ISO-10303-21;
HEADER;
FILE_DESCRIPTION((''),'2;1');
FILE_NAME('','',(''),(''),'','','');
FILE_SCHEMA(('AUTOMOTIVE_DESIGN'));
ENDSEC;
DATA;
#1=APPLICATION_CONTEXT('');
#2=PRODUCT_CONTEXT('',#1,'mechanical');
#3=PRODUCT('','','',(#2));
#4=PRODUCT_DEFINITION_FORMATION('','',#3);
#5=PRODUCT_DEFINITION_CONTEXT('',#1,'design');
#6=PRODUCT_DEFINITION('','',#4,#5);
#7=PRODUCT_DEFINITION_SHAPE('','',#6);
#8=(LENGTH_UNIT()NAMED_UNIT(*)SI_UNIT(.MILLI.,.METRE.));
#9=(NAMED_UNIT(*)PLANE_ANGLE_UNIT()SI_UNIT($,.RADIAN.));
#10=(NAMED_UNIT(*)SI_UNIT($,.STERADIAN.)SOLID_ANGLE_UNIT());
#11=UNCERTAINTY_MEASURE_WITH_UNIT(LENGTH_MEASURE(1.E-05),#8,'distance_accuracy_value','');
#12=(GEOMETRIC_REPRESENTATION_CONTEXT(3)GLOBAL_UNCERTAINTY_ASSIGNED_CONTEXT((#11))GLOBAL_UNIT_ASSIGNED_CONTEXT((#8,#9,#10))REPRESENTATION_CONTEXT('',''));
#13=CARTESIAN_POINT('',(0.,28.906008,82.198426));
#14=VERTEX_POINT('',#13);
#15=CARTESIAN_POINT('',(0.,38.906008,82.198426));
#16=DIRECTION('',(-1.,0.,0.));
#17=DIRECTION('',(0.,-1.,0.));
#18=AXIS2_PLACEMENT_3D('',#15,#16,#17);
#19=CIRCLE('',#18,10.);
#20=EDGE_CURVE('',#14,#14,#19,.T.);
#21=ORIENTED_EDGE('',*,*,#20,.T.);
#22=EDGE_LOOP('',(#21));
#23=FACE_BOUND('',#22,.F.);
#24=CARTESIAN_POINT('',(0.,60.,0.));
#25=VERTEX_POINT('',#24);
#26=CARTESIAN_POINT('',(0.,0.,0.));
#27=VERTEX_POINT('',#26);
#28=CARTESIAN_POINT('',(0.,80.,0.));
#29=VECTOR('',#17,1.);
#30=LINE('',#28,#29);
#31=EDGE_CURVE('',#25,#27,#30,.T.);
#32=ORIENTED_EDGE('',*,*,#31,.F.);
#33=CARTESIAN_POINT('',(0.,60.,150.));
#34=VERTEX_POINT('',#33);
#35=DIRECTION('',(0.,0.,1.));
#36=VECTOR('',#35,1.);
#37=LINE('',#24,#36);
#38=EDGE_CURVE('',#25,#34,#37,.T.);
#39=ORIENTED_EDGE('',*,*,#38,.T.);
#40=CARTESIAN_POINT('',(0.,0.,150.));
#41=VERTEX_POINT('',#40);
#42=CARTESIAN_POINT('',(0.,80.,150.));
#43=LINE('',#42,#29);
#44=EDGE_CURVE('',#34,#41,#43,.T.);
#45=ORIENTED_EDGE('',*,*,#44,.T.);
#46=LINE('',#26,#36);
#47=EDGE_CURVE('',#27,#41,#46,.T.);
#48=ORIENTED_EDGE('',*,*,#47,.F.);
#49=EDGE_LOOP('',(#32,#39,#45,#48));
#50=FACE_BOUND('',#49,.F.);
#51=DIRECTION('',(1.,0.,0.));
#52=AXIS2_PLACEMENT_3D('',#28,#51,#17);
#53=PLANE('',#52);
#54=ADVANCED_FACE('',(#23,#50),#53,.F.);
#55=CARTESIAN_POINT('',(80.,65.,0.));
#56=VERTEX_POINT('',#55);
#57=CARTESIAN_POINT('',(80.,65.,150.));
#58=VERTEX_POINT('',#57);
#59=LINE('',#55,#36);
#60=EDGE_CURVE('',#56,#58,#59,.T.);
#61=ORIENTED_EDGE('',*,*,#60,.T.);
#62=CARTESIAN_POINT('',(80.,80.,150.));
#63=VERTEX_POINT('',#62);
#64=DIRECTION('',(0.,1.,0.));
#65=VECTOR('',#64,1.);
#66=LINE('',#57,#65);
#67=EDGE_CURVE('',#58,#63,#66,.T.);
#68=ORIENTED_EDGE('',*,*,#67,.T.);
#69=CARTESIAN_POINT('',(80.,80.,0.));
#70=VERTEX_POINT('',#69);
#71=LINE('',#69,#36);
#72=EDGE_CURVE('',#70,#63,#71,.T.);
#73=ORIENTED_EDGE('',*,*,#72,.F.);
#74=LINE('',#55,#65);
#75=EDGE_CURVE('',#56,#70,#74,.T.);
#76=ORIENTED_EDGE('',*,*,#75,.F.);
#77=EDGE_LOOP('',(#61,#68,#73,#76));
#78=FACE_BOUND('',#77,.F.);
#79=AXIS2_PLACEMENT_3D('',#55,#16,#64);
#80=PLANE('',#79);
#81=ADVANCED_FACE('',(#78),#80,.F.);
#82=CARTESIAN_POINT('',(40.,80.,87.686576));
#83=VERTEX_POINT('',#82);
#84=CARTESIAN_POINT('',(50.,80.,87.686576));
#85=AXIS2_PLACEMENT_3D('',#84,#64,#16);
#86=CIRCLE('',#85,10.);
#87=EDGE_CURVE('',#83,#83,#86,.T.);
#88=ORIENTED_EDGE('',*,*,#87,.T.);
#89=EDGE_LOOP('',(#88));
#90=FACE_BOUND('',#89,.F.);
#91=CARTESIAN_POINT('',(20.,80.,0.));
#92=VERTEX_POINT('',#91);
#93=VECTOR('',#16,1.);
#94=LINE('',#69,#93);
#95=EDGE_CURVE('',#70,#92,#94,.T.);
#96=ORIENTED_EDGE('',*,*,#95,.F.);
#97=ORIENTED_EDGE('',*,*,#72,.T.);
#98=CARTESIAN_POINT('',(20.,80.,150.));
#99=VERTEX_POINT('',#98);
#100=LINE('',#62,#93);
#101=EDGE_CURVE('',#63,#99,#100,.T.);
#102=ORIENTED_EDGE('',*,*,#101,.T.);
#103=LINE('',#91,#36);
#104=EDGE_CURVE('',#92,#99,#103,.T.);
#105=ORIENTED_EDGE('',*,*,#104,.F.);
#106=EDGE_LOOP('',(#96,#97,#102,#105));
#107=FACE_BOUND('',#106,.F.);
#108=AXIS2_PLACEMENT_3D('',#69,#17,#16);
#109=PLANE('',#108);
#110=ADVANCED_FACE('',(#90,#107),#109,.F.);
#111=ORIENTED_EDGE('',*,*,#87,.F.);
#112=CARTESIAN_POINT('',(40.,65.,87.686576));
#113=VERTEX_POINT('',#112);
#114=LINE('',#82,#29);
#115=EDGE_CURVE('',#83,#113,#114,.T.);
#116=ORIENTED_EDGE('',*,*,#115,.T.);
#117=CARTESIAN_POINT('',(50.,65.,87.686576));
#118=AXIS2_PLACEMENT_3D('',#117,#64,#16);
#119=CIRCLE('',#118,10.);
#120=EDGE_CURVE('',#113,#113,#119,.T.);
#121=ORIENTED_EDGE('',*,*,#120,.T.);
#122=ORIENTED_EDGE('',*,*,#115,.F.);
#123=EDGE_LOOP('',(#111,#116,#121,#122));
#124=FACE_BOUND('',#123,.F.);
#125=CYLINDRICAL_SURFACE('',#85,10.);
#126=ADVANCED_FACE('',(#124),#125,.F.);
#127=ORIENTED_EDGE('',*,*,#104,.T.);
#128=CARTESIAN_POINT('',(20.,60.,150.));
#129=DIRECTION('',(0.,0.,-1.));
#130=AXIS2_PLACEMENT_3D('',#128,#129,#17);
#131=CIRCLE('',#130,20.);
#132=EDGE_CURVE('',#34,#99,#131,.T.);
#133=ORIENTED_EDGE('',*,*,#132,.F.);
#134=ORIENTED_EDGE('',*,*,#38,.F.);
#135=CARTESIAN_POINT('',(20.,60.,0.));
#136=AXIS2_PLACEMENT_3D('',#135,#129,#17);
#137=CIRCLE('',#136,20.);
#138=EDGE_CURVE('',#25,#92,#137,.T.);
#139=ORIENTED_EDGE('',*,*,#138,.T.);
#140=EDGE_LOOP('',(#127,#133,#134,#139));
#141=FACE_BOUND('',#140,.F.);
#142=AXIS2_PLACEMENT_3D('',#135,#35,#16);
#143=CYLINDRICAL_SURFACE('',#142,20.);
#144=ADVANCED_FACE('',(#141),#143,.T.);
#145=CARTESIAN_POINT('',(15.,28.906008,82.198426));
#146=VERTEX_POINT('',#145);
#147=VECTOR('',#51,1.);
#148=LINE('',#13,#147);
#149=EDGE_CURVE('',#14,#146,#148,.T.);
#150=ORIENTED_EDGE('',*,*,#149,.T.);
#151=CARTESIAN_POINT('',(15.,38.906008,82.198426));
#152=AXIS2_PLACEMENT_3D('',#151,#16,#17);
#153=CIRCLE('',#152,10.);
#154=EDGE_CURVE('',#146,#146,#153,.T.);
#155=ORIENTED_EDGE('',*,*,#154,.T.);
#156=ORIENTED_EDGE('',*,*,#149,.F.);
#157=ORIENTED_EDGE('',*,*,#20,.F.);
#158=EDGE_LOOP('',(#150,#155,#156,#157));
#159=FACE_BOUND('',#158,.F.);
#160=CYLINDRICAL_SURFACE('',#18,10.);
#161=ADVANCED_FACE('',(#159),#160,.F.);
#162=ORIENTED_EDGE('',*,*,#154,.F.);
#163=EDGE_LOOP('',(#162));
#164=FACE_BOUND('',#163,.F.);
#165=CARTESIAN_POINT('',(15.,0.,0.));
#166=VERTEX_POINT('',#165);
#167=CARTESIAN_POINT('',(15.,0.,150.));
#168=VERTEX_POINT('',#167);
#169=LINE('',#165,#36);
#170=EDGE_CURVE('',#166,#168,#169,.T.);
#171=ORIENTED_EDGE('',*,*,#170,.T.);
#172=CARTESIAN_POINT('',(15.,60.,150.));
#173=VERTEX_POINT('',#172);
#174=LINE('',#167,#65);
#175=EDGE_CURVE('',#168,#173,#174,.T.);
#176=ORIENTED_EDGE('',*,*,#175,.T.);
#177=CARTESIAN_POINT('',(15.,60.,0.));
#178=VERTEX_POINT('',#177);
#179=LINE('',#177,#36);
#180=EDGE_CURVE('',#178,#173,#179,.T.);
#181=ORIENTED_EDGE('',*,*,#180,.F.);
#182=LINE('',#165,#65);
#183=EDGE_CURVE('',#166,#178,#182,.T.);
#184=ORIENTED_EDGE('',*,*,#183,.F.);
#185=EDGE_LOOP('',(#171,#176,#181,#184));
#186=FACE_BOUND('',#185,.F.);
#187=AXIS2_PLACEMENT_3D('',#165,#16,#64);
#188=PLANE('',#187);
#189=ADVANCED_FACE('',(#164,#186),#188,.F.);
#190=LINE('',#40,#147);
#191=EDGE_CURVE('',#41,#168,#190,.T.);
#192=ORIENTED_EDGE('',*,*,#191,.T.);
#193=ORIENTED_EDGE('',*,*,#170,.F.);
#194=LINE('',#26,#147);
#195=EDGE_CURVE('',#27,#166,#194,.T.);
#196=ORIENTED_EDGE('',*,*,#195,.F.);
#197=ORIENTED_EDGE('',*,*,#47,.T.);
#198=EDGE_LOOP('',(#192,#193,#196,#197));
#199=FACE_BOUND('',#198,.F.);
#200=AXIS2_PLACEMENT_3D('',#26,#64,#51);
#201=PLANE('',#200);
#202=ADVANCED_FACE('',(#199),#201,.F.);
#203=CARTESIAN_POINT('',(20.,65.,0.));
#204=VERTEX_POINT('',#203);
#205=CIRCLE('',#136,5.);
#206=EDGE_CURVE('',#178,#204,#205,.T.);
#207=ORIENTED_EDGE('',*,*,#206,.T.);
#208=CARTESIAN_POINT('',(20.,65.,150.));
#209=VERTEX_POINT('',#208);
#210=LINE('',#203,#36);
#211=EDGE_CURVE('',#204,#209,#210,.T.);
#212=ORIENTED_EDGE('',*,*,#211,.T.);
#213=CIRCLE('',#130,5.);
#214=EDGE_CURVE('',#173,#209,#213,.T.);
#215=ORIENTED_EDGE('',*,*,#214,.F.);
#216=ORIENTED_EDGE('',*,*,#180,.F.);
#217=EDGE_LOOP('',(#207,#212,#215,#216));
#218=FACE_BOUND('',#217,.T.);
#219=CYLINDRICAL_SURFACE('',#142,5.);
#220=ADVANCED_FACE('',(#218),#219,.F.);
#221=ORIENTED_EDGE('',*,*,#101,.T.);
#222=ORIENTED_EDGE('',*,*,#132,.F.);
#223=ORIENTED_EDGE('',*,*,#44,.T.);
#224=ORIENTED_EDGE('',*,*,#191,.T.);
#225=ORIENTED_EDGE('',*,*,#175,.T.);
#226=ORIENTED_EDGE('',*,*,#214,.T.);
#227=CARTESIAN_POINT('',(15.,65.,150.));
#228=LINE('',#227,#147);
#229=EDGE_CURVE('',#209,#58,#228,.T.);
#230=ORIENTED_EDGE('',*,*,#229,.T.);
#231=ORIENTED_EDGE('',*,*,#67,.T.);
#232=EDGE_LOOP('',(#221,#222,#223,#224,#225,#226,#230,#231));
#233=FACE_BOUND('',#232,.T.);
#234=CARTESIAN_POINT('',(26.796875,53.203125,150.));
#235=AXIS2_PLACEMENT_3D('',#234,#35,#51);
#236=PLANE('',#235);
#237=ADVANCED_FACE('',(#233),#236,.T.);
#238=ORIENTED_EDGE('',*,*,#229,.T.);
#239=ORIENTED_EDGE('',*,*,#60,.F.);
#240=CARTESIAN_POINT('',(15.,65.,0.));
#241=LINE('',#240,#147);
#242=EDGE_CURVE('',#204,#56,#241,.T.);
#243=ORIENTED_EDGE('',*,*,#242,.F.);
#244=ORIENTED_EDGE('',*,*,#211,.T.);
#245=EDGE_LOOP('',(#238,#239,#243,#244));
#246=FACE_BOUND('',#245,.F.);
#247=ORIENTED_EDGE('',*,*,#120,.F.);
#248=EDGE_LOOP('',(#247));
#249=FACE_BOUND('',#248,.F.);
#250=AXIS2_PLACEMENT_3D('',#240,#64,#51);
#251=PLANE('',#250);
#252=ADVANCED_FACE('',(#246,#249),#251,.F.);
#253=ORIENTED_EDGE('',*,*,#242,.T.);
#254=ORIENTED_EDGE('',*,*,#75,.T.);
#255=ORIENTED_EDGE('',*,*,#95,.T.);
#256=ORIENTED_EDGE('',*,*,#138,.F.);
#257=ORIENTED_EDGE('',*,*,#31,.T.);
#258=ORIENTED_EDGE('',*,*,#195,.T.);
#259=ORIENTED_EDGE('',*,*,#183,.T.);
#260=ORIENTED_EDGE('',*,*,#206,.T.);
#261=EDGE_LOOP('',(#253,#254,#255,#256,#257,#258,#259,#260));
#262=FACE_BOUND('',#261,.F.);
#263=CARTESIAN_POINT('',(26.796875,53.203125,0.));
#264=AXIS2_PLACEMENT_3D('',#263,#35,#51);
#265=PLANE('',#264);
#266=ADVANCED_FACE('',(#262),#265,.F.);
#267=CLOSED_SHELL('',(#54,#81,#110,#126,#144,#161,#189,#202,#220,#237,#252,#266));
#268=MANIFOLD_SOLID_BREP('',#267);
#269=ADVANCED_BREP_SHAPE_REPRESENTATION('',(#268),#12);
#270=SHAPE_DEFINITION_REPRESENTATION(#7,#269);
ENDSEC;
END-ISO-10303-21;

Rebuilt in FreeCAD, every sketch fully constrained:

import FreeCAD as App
import Part
import Sketcher

V = App.Vector


def edges_at(feature, points):
    """Names of the edges that pass closest to the given points."""
    edges = feature.Shape.Edges
    near = lambda p: min(range(len(edges)), key=lambda i: edges[i].distToShape(Part.Vertex(*p))[0])
    return sorted({f"Edge{near(p) + 1}" for p in points})


def add_polygon(sketch, points):
    """Adds a closed chain of lines whose ends are joined by coincident constraints."""
    first, n = sketch.GeometryCount, len(points)
    for a, b in zip(points, points[1:] + points[:1]):
        sketch.addGeometry(Part.LineSegment(App.Vector(*a, 0), App.Vector(*b, 0)), False)
    for i in range(n):
        sketch.addConstraint(Sketcher.Constraint("Coincident", first + i, 2, first + (i + 1) % n, 1))

doc = App.newDocument("Part")
params = doc.addObject("Spreadsheet::Sheet", "Params")
for row, (alias, value) in enumerate([
    ("sketch1_width", "15 mm"),
    ("sketch1_width2", "65 mm"),
    ("pad1_length", "150 mm"),
    ("fillet_radius", "20 mm"),
    ("fillet2_radius", "5 mm"),
    ("sketch2_diameter", "20 mm"),
    ("sketch3_diameter", "20 mm"),
], start=1):
    params.set(f"A{row}", alias)
    params.set(f"B{row}", "=" + value)
    params.setAlias(f"B{row}", alias)

body = doc.addObject("PartDesign::Body", "Body")

sketch1 = doc.addObject("Sketcher::SketchObject", "Sketch")
body.addObject(sketch1)
sketch1.AttachmentSupport = (doc.XY_Plane, [""])
sketch1.MapMode = "FlatFace"
add_polygon(sketch1, [(0, 80), (0, 0), (15, 0), (15, 65), (80, 65), (80, 80)])
sketch1.addConstraint([
    Sketcher.Constraint("Vertical", 0),
    Sketcher.Constraint("Horizontal", 1),
    Sketcher.Constraint("Vertical", 2),
    Sketcher.Constraint("Horizontal", 3),
    Sketcher.Constraint("Vertical", 4),
    Sketcher.Constraint("Horizontal", 5),
    Sketcher.Constraint("Coincident", 0, 2, -1, 1),
    Sketcher.Constraint("Equal", 5, 0),
    Sketcher.Constraint("Equal", 3, 2),
    Sketcher.Constraint("DistanceX", 1, 1, 1, 2, 15.0),
    Sketcher.Constraint("DistanceX", 3, 1, 3, 2, 65.0),
])
sketch1.setExpression("Constraints[15]", "Params.sketch1_width")
sketch1.setExpression("Constraints[16]", "Params.sketch1_width2")
pad1 = doc.addObject("PartDesign::Pad", "Pad")
body.addObject(pad1)
pad1.Profile = sketch1
pad1.setExpression("Length", "Params.pad1_length")
doc.recompute()

fillet = doc.addObject("PartDesign::Fillet", "Fillet")
body.addObject(fillet)
fillet.Base = (pad1, edges_at(pad1, [(0, 80, 75)]))
fillet.setExpression("Radius", "Params.fillet_radius")
doc.recompute()

fillet2 = doc.addObject("PartDesign::Fillet", "Fillet001")
body.addObject(fillet2)
fillet2.Base = (fillet, edges_at(fillet, [(15, 65, 75)]))
fillet2.setExpression("Radius", "Params.fillet2_radius")

sketch2 = doc.addObject("Sketcher::SketchObject", "Sketch001")
body.addObject(sketch2)
sketch2.AttachmentSupport = (doc.YZ_Plane, [""])
sketch2.MapMode = "FlatFace"
sketch2.addGeometry(Part.Circle(V(38.906008, 82.198426, 0), V(0, 0, 1), 10), False)
sketch2.addConstraint([
    Sketcher.Constraint("Diameter", 0, 20.0),
    Sketcher.Constraint("DistanceX", -1, 1, 0, 3, 38.906008),
    Sketcher.Constraint("DistanceY", -1, 1, 0, 3, 82.198426),
])
sketch2.setExpression("Constraints[0]", "Params.sketch2_diameter")
pocket1 = doc.addObject("PartDesign::Pocket", "Pocket")
body.addObject(pocket1)
pocket1.Profile = sketch2
pocket1.Type = "ThroughAll"
pocket1.Reversed = True

sketch3 = doc.addObject("Sketcher::SketchObject", "Sketch002")
body.addObject(sketch3)
sketch3.AttachmentSupport = (doc.XZ_Plane, [""])
sketch3.MapMode = "FlatFace"
sketch3.AttachmentOffset = App.Placement(V(0, 0, -80), App.Rotation())
sketch3.addGeometry(Part.Circle(V(50, 87.686576, 0), V(0, 0, 1), 10), False)
sketch3.addConstraint([
    Sketcher.Constraint("Diameter", 0, 20.0),
    Sketcher.Constraint("DistanceX", -1, 1, 0, 3, 50.0),
    Sketcher.Constraint("DistanceY", -1, 1, 0, 3, 87.686576),
])
sketch3.setExpression("Constraints[0]", "Params.sketch3_diameter")
pocket2 = doc.addObject("PartDesign::Pocket", "Pocket001")
body.addObject(pocket2)
pocket2.Profile = sketch3
pocket2.Type = "ThroughAll"
pocket2.Reversed = True

doc.recompute()
